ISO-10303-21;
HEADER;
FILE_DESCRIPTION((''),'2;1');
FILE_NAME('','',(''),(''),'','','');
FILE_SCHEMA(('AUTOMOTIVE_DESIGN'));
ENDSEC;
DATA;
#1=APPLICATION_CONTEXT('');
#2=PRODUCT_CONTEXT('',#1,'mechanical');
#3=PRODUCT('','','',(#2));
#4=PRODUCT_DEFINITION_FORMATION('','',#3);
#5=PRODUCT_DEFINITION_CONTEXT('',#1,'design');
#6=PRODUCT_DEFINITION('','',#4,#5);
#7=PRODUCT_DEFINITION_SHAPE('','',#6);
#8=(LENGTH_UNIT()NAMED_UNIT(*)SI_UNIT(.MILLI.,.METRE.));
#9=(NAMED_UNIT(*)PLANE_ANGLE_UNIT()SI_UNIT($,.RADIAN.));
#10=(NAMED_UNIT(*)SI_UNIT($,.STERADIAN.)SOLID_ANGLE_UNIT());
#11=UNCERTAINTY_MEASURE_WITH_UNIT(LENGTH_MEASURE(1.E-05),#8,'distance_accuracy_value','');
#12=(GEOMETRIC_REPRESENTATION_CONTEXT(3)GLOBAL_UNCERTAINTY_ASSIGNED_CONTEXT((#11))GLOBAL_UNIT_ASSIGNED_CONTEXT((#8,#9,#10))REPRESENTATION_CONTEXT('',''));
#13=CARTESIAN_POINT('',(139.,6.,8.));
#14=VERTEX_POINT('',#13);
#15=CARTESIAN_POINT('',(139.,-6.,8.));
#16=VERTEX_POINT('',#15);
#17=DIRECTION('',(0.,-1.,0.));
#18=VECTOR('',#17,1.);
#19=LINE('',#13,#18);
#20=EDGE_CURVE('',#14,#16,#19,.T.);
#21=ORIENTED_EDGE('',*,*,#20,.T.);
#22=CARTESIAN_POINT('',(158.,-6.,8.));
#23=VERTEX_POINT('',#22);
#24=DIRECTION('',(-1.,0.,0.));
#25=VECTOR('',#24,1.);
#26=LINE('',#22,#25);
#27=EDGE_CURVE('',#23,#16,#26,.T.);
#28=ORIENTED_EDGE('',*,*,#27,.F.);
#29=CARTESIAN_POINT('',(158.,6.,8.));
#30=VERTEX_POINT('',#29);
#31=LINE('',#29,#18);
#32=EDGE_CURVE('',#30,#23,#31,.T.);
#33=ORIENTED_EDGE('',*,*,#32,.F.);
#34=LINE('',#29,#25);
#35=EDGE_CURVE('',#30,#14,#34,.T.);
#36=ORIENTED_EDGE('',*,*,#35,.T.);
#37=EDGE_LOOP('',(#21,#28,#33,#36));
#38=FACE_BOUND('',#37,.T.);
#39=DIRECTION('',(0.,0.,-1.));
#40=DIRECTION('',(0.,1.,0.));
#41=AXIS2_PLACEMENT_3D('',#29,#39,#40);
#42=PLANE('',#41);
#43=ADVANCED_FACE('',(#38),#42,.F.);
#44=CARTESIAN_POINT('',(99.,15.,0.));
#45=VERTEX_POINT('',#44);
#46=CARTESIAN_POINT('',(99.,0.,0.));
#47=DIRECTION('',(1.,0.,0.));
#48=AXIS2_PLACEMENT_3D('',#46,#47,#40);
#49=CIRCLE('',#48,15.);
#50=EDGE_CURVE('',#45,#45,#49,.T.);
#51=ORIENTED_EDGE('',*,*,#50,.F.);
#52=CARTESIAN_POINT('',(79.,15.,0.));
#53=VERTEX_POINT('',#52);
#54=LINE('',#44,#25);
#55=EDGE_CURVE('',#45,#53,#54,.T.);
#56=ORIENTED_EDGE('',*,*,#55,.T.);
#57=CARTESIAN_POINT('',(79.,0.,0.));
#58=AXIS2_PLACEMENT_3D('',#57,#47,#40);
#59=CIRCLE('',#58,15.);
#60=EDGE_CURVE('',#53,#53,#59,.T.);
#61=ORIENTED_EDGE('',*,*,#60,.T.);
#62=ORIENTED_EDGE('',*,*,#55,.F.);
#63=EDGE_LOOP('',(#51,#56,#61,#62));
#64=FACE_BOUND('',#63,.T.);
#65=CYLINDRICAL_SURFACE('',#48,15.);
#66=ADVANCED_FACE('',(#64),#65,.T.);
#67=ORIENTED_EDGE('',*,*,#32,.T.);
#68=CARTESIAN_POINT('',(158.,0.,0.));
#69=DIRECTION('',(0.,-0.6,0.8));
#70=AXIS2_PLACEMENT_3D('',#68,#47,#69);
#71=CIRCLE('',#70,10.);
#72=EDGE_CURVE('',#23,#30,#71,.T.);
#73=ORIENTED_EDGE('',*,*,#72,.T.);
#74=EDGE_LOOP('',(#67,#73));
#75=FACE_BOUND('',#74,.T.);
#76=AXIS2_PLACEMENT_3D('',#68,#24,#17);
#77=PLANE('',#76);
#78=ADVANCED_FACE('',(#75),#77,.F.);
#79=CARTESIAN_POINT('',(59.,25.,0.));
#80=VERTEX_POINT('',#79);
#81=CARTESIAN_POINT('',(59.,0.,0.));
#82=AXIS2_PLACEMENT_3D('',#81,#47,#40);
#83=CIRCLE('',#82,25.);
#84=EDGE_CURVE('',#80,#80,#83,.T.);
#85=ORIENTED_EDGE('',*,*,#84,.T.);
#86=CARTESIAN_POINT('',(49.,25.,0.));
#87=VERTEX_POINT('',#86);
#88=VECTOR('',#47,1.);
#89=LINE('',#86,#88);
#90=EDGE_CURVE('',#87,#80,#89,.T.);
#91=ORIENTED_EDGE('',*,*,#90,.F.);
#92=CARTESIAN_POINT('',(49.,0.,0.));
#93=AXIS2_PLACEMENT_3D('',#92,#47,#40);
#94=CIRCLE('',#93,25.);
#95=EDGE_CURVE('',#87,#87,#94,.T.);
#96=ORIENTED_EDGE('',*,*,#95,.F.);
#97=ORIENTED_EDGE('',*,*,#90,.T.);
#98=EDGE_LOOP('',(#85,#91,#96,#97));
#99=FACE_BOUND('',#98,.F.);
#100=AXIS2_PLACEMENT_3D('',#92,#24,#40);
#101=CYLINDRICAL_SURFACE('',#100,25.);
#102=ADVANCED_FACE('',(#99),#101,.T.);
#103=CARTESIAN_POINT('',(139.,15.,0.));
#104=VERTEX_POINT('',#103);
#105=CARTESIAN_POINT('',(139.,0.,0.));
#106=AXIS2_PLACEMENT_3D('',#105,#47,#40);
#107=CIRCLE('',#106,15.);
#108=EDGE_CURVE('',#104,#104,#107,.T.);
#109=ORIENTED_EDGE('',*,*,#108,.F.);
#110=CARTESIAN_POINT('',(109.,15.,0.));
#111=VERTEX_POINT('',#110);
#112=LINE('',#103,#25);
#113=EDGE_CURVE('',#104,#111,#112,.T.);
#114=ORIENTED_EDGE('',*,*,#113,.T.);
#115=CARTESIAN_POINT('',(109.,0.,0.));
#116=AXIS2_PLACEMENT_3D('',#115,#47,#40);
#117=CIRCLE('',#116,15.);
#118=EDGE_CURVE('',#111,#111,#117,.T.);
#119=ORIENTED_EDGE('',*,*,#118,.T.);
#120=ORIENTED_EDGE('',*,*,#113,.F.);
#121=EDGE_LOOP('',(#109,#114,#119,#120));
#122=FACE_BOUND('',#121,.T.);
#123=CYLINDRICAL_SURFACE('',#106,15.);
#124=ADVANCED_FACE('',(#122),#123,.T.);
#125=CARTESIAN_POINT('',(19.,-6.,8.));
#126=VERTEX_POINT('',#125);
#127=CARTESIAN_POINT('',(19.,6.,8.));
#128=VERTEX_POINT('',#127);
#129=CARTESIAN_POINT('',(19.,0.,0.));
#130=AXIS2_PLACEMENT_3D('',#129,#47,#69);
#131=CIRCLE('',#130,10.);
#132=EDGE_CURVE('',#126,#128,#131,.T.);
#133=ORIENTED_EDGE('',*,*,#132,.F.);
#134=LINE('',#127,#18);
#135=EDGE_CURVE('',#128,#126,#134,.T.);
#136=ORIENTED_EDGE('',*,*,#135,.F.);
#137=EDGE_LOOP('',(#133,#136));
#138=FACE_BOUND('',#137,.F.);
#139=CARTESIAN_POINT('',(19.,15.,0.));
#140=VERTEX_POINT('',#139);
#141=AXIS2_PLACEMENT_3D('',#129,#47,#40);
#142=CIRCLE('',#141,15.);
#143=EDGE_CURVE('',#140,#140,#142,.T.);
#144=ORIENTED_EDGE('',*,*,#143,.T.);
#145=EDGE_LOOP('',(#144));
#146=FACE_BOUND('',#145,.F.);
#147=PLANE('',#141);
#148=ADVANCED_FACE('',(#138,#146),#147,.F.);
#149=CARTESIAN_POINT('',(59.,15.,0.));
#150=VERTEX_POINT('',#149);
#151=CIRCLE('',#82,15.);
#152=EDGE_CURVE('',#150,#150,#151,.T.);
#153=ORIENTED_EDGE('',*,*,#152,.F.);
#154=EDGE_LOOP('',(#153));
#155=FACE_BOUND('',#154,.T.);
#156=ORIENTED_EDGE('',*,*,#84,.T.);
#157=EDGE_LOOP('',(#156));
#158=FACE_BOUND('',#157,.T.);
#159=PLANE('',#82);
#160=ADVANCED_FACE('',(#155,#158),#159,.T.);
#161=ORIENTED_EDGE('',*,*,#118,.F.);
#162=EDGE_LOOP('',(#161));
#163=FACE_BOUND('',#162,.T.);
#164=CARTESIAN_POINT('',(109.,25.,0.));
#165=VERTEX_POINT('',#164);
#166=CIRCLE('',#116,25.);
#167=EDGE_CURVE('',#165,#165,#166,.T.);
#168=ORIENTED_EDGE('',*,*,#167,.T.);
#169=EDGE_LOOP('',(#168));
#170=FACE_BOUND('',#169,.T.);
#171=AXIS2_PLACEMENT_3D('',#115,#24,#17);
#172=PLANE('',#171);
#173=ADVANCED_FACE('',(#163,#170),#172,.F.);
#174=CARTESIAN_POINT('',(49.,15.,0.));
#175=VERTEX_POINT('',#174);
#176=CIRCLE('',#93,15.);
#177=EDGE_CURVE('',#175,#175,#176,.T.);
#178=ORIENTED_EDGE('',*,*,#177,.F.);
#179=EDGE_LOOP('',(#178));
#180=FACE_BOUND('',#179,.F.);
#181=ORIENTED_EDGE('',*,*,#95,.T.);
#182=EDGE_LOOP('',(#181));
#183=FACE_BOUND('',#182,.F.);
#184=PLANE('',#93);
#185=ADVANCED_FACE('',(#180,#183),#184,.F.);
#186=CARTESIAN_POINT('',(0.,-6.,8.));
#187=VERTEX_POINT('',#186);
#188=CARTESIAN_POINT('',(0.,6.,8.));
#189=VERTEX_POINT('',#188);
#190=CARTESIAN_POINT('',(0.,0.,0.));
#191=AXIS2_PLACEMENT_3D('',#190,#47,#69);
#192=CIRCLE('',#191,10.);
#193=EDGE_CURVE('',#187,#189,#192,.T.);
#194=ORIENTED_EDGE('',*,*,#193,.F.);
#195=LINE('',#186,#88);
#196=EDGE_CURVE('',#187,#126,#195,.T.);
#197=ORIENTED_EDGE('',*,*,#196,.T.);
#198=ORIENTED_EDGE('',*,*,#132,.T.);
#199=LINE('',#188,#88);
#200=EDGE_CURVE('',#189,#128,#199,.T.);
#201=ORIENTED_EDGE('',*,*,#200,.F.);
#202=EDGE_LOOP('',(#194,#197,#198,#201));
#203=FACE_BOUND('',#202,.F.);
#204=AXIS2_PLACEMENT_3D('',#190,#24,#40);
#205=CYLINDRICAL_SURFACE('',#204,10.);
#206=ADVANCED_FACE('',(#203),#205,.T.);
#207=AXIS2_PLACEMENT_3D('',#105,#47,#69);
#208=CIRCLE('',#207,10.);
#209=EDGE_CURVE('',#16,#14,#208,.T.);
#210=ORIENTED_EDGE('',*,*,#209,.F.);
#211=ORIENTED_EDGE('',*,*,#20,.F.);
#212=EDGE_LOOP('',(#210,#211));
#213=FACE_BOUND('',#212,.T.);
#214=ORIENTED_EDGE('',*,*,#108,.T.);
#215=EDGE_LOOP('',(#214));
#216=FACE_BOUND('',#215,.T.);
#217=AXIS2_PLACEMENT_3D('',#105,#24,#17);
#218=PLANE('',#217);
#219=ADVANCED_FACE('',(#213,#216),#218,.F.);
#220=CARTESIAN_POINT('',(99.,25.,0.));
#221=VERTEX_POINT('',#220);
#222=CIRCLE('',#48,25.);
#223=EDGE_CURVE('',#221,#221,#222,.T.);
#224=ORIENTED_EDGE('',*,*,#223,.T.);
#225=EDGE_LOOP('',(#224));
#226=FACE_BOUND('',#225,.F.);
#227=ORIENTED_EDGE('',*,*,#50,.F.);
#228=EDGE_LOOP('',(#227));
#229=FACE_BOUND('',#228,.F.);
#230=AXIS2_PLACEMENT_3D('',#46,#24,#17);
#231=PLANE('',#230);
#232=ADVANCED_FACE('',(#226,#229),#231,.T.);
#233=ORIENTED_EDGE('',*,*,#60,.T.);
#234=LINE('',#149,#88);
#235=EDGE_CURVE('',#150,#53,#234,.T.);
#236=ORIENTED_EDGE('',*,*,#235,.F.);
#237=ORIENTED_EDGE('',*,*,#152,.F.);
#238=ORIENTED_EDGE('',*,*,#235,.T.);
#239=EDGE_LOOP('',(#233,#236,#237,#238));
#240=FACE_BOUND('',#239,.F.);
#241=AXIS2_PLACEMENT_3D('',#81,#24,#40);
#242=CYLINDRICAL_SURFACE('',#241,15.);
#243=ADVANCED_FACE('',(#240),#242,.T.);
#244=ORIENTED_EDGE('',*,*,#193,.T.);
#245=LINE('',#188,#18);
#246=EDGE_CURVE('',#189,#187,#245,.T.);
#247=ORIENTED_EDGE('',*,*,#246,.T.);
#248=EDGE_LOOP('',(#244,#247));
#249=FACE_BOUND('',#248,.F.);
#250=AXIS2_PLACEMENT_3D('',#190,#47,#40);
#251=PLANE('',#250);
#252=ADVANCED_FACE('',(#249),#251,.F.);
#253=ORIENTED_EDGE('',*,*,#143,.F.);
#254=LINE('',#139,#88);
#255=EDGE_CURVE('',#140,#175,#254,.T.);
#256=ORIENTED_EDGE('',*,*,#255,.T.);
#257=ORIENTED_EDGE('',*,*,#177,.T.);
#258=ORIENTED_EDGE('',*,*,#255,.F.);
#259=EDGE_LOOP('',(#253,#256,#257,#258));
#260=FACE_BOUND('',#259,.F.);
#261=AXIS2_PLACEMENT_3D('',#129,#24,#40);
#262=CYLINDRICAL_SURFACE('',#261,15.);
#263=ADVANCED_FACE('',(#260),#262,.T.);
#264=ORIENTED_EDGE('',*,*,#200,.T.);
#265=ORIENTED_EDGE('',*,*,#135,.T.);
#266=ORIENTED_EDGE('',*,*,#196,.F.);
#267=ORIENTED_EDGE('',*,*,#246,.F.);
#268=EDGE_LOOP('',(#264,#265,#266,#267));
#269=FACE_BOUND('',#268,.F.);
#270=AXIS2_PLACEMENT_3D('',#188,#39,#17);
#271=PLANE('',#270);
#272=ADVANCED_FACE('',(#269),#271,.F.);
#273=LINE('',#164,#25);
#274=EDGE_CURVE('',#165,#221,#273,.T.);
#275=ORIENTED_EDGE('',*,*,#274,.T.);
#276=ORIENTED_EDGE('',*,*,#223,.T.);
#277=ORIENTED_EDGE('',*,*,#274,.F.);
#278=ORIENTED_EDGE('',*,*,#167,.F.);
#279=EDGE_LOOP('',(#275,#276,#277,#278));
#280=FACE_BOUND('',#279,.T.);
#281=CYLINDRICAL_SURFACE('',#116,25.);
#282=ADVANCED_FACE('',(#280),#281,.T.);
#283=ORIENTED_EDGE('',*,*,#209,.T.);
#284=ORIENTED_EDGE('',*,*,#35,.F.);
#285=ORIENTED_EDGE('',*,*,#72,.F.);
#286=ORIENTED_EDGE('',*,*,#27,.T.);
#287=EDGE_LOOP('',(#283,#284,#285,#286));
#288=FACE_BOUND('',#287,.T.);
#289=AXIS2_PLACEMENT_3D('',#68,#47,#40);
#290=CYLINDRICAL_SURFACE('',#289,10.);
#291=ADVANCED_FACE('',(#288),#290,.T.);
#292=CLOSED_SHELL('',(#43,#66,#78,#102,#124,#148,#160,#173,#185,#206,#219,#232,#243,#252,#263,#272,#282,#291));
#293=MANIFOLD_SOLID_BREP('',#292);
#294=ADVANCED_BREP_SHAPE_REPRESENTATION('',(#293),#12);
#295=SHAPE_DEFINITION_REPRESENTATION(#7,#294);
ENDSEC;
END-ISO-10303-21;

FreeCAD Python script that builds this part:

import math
import FreeCAD as App
import Part
import Sketcher
Q = App.Units.Quantity

doc = App.newDocument("Part")
body = doc.addObject("PartDesign::Body", "Body")

# Sketch on YZ plane
sketch1 = body.newObject("Sketcher::SketchObject", "Sketch")
sketch1.AttachmentSupport = (doc.getObject("YZ_Plane"), [""])
sketch1.MapMode = "FlatFace"
sketch1.addGeometry(Part.Circle(App.Vector(0, 0, 0), App.Vector(0, 0, 1), 10), False)
sketch1.addConstraint(Sketcher.Constraint("Coincident", 0, 3, -1, 1))
sketch1.addConstraint(Sketcher.Constraint("Diameter", 0, Q("20 mm")))
pad1 = body.newObject("PartDesign::Pad", "Pad")
pad1.Profile = sketch1
pad1.Length = 19

# Sketch on YZ plane
sketch2 = body.newObject("Sketcher::SketchObject", "Sketch001")
sketch2.AttachmentSupport = (doc.getObject("YZ_Plane"), [""])
sketch2.MapMode = "FlatFace"
sketch2.AttachmentOffset = App.Placement(App.Vector(0, 0, 19), App.Rotation())
sketch2.addGeometry(Part.Circle(App.Vector(0, 0, 0), App.Vector(0, 0, 1), 15), False)
sketch2.addConstraint(Sketcher.Constraint("Coincident", 0, 3, -1, 1))
sketch2.addConstraint(Sketcher.Constraint("Diameter", 0, Q("30 mm")))
pad2 = body.newObject("PartDesign::Pad", "Pad001")
pad2.Profile = sketch2
pad2.Length = 30

# Sketch on YZ plane
sketch3 = body.newObject("Sketcher::SketchObject", "Sketch002")
sketch3.AttachmentSupport = (doc.getObject("YZ_Plane"), [""])
sketch3.MapMode = "FlatFace"
sketch3.AttachmentOffset = App.Placement(App.Vector(0, 0, 49), App.Rotation())
sketch3.addGeometry(Part.Circle(App.Vector(0, 0, 0), App.Vector(0, 0, 1), 25), False)
sketch3.addConstraint(Sketcher.Constraint("Coincident", 0, 3, -1, 1))
sketch3.addConstraint(Sketcher.Constraint("Diameter", 0, Q("50 mm")))
pad3 = body.newObject("PartDesign::Pad", "Pad002")
pad3.Profile = sketch3
pad3.Length = 10

# Sketch on YZ plane
sketch4 = body.newObject("Sketcher::SketchObject", "Sketch003")
sketch4.AttachmentSupport = (doc.getObject("YZ_Plane"), [""])
sketch4.MapMode = "FlatFace"
sketch4.AttachmentOffset = App.Placement(App.Vector(0, 0, 59), App.Rotation())
sketch4.addGeometry(Part.Circle(App.Vector(0, 0, 0), App.Vector(0, 0, 1), 15), False)
sketch4.addConstraint(Sketcher.Constraint("Coincident", 0, 3, -1, 1))
sketch4.addConstraint(Sketcher.Constraint("Diameter", 0, Q("30 mm")))
pad4 = body.newObject("PartDesign::Pad", "Pad003")
pad4.Profile = sketch4
pad4.Length = 20

# Sketch on YZ plane
sketch5 = body.newObject("Sketcher::SketchObject", "Sketch004")
sketch5.AttachmentSupport = (doc.getObject("YZ_Plane"), [""])
sketch5.MapMode = "FlatFace"
sketch5.addGeometry(Part.ArcOfCircle(Part.Circle(App.Vector(0, 0, 0), App.Vector(0, 0, 1), 10), math.radians(53), math.radians(127)), False)
sketch5.addGeometry(Part.LineSegment(App.Vector(6, 8, 0), App.Vector(-6, 8, 0)), False)
sketch5.addConstraint(Sketcher.Constraint("Coincident", 0, 1, 1, 1))
sketch5.addConstraint(Sketcher.Constraint("Coincident", 1, 2, 0, 2))
sketch5.addConstraint(Sketcher.Constraint("Horizontal", 1))
sketch5.addConstraint(Sketcher.Constraint("Coincident", 0, 3, -1, 1))
sketch5.addConstraint(Sketcher.Constraint("Radius", 0, Q("10 mm")))
sketch5.addConstraint(Sketcher.Constraint("DistanceX", 1, 2, 1, 1, Q("12 mm")))
pocket1 = body.newObject("PartDesign::Pocket", "Pocket")
pocket1.Profile = sketch5
pocket1.Length = 19
pocket1.Reversed = True
body2 = doc.addObject("PartDesign::Body", "Body001")
doc.recompute()

body2.BaseFeature = body
doc.recompute()

mirroring = doc.addObject("Part::Mirroring", "Mirroring")
mirroring.Source = body
mirroring.Base = App.Vector(79, 0, 0)
mirroring.Normal = App.Vector(1, 0, 0)
body3 = doc.addObject("PartDesign::Body", "Body002")
body3.BaseFeature = mirroring
boolean = body2.newObject("PartDesign::Boolean", "Boolean")
boolean.Type = "Fuse"
boolean.addObjects([body3])
doc.recompute()
mirroring.Visibility = False

doc.recompute()
